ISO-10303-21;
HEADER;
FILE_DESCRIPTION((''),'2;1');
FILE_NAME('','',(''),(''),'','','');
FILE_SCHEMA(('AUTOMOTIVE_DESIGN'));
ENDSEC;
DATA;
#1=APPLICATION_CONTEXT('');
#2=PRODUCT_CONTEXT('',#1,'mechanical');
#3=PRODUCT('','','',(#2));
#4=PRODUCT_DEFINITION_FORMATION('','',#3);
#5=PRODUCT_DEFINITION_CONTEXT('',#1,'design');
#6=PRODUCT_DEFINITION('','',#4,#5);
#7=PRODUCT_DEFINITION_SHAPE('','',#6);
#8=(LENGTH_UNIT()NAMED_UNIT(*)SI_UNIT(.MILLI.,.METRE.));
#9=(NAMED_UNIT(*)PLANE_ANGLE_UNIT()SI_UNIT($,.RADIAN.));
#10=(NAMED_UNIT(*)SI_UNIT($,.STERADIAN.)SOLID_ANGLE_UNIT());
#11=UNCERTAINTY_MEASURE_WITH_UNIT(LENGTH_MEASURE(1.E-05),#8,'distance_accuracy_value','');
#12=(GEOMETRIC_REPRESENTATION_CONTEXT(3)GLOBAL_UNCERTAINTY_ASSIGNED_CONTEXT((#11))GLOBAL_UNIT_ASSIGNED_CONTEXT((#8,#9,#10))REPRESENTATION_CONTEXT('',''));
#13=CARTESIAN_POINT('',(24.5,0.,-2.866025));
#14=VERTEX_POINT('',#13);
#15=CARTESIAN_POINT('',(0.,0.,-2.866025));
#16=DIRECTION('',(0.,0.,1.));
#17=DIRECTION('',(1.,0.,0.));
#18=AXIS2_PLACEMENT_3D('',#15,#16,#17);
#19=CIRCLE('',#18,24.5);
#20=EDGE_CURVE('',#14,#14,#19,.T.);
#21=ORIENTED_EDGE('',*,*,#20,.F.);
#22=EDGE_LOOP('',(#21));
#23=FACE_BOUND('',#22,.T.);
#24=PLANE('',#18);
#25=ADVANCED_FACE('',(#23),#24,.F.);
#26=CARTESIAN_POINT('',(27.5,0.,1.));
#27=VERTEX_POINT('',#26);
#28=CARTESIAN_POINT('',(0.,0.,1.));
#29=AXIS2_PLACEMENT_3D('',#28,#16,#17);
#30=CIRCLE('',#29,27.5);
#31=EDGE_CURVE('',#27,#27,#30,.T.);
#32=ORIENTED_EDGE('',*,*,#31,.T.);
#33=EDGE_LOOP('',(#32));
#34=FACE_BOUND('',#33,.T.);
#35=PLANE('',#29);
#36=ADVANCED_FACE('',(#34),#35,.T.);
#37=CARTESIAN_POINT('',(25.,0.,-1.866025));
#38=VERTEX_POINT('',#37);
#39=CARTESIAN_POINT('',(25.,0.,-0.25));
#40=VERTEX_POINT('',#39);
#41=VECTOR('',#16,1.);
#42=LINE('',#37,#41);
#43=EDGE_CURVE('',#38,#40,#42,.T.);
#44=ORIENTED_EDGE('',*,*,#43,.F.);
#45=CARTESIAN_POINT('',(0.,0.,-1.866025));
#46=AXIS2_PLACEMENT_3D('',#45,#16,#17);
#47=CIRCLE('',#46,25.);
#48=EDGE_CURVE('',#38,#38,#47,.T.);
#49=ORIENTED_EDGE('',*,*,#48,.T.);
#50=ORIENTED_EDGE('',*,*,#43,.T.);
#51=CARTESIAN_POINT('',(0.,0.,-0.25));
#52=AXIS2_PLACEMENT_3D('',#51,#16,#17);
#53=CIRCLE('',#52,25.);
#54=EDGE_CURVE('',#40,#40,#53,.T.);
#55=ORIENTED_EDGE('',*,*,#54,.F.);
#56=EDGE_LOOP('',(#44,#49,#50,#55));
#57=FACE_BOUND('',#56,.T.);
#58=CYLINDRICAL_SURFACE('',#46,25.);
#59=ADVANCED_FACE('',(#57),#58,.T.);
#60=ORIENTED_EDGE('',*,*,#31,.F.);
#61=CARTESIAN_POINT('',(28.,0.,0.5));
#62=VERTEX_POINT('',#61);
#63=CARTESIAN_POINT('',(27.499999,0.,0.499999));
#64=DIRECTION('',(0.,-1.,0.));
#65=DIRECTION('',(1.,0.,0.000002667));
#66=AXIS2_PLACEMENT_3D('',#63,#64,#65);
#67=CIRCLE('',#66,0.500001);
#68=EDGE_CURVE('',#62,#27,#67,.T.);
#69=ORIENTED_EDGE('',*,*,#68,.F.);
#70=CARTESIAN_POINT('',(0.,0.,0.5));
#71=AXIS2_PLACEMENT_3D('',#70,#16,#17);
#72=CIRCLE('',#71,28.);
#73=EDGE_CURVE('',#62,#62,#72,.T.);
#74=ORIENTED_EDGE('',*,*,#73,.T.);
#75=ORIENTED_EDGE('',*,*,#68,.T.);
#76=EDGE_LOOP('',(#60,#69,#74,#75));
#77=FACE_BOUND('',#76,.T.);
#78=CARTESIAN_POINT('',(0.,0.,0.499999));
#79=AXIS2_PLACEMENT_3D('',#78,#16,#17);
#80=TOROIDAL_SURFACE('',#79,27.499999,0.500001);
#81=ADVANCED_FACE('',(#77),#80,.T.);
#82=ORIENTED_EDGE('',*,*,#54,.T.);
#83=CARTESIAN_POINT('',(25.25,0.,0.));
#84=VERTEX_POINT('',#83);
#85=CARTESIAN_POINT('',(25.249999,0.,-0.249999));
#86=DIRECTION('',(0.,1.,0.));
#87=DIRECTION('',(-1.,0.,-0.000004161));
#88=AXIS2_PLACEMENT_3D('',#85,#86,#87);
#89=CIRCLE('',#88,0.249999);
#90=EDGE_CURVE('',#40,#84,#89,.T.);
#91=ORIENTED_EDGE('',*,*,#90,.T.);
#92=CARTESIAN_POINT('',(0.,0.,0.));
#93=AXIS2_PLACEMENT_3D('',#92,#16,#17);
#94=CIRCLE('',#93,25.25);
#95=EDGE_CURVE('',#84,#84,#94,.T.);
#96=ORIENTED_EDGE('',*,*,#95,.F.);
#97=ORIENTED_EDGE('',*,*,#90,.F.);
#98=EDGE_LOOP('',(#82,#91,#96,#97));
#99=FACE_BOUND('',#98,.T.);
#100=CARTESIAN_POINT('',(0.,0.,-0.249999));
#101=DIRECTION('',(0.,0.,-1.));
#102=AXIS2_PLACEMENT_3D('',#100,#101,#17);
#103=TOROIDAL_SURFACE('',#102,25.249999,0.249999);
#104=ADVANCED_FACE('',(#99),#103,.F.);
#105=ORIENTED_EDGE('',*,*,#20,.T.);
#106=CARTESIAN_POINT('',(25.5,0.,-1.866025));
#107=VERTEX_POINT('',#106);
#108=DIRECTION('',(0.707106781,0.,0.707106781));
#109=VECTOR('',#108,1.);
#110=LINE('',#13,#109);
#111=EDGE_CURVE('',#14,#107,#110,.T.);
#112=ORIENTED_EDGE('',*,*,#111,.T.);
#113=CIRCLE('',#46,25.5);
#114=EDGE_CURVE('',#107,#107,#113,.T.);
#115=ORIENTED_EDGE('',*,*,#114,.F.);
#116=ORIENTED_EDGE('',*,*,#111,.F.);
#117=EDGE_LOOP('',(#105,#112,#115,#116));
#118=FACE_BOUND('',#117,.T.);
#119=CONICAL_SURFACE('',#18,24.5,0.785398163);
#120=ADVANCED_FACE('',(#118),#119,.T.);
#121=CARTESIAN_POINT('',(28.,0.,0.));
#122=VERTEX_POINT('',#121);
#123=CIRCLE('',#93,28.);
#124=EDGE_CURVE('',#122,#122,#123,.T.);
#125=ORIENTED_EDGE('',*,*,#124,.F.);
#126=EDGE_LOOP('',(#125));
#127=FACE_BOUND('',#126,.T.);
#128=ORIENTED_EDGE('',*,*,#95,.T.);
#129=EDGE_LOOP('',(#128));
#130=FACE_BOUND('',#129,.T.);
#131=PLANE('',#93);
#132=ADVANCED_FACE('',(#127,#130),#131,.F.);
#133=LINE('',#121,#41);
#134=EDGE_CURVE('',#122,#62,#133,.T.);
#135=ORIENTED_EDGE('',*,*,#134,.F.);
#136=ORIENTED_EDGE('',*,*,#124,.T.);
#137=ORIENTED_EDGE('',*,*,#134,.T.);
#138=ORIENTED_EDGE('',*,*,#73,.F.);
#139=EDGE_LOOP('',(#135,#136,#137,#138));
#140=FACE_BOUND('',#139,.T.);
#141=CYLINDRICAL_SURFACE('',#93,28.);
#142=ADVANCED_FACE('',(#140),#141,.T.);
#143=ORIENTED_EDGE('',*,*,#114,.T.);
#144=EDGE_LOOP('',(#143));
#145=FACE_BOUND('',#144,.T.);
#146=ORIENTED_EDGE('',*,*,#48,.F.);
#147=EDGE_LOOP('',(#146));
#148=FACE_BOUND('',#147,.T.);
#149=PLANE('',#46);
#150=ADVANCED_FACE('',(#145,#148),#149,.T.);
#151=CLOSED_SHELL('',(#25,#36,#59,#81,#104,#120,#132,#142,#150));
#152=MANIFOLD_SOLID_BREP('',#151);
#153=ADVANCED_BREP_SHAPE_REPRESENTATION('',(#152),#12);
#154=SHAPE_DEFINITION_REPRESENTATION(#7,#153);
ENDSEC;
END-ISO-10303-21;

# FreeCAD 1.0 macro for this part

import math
import FreeCAD as App
import Part
import Sketcher
from FreeCAD import Vector
Q = App.Units.Quantity

doc = App.newDocument("Part")
body = doc.addObject("PartDesign::Body", "Body")

sketch1 = doc.addObject("Sketcher::SketchObject", "Sketch")
body.addObject(sketch1)
sketch1.AttachmentSupport = (doc.XZ_Plane, [""])
sketch1.MapMode = "FlatFace"
sketch1.addGeometry(Part.LineSegment(Vector(0, 1, 0), Vector(0, -2.87, 0)), False)
sketch1.addGeometry(Part.LineSegment(Vector(0, -2.87, 0), Vector(24.5, -2.87, 0)), False)
sketch1.addGeometry(Part.LineSegment(Vector(24.5, -2.87, 0), Vector(25.5, -1.87, 0)), False)
sketch1.addGeometry(Part.LineSegment(Vector(25.5, -1.87, 0), Vector(25, -1.87, 0)), False)
sketch1.addGeometry(Part.LineSegment(Vector(25, -1.87, 0), Vector(25, -0.25, 0)), False)
sketch1.addGeometry(Part.ArcOfCircle(Part.Circle(Vector(25.25, -0.25, 0), Vector(0, 0, 1), 0.25), math.radians(90), math.radians(180)), False)
sketch1.addGeometry(Part.LineSegment(Vector(25.25, 0, 0), Vector(28, 0, 0)), False)
sketch1.addGeometry(Part.LineSegment(Vector(28, 0, 0), Vector(28, 0.5, 0)), False)
sketch1.addGeometry(Part.ArcOfCircle(Part.Circle(Vector(27.5, 0.5, 0), Vector(0, 0, 1), 0.5), math.radians(0), math.radians(90)), False)
sketch1.addGeometry(Part.LineSegment(Vector(27.5, 1, 0), Vector(0, 1, 0)), False)
sketch1.addConstraint(Sketcher.Constraint("Coincident", 0, 2, 1, 1))
sketch1.addConstraint(Sketcher.Constraint("Coincident", 1, 2, 2, 1))
sketch1.addConstraint(Sketcher.Constraint("Coincident", 2, 2, 3, 1))
sketch1.addConstraint(Sketcher.Constraint("Coincident", 3, 2, 4, 1))
sketch1.addConstraint(Sketcher.Constraint("Coincident", 4, 2, 5, 2))
sketch1.addConstraint(Sketcher.Constraint("Coincident", 5, 1, 6, 1))
sketch1.addConstraint(Sketcher.Constraint("Coincident", 6, 2, 7, 1))
sketch1.addConstraint(Sketcher.Constraint("Coincident", 7, 2, 8, 1))
sketch1.addConstraint(Sketcher.Constraint("Coincident", 8, 2, 9, 1))
sketch1.addConstraint(Sketcher.Constraint("Coincident", 9, 2, 0, 1))
sketch1.addConstraint(Sketcher.Constraint("Vertical", 0))
sketch1.addConstraint(Sketcher.Constraint("Horizontal", 1))
sketch1.addConstraint(Sketcher.Constraint("Horizontal", 3))
sketch1.addConstraint(Sketcher.Constraint("Vertical", 4))
sketch1.addConstraint(Sketcher.Constraint("Horizontal", 6))
sketch1.addConstraint(Sketcher.Constraint("Vertical", 7))
sketch1.addConstraint(Sketcher.Constraint("Horizontal", 9))
sketch1.addConstraint(Sketcher.Constraint("PointOnObject", 0, 2, -2))
sketch1.addConstraint(Sketcher.Constraint("PointOnObject", 5, 1, -1))
sketch1.addConstraint(Sketcher.Constraint("Horizontal", 5, 3, 4, 2))
sketch1.addConstraint(Sketcher.Constraint("Horizontal", 8, 3, 7, 2))
sketch1.addConstraint(Sketcher.Constraint("Equal", 3, 7))
sketch1.addConstraint(Sketcher.Constraint("Radius", 8, Q("0.500001 mm")))
sketch1.addConstraint(Sketcher.Constraint("Angle", 2, Q("45 deg")))
sketch1.addConstraint(Sketcher.Constraint("Radius", 5, Q("0.249999 mm")))
sketch1.addConstraint(Sketcher.Constraint("DistanceX", 1, 1, 1, 2, Q("24.5 mm")))
sketch1.addConstraint(Sketcher.Constraint("DistanceX", 3, 2, 3, 1, Q("0.5 mm")))
sketch1.addConstraint(Sketcher.Constraint("DistanceX", 9, 2, 9, 1, Q("27.5 mm")))
sketch1.addConstraint(Sketcher.Constraint("DistanceX", -1, 1, 3, 2, Q("25 mm")))
sketch1.addConstraint(Sketcher.Constraint("DistanceX", -1, 1, 6, 2, Q("28 mm")))
sketch1.addConstraint(Sketcher.Constraint("DistanceX", 6, 1, 6, 2, Q("2.75 mm")))
sketch1.addConstraint(Sketcher.Constraint("DistanceY", 0, 2, 0, 1, Q("3.866025 mm")))
revolution = doc.addObject("PartDesign::Revolution", "Revolution")
body.addObject(revolution)
revolution.Profile = sketch1
revolution.ReferenceAxis = (sketch1, ["V_Axis"])
revolution.Angle = 360

doc.recompute()
